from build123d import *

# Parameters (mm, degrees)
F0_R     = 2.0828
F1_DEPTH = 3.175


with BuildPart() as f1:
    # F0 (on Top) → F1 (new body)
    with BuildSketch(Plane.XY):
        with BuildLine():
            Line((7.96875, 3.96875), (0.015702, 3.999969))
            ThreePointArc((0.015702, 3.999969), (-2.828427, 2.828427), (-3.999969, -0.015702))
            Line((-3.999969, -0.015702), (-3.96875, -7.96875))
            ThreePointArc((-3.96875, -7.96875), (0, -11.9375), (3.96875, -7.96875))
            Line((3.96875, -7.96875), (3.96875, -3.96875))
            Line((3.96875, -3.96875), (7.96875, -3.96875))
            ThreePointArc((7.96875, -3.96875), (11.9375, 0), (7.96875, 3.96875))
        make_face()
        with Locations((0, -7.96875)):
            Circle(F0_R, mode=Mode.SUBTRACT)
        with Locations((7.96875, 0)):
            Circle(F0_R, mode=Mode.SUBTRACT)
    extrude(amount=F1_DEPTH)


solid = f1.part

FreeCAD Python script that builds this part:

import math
import FreeCAD as App
import Part
import Sketcher
from FreeCAD import Vector
Q = App.Units.Quantity

doc = App.newDocument("Part")
body = doc.addObject("PartDesign::Body", "Body")

# Sketch on XY plane
sketch1 = doc.addObject("Sketcher::SketchObject", "Sketch")
body.addObject(sketch1)
sketch1.AttachmentSupport = (doc.XY_Plane, [""])
sketch1.MapMode = "FlatFace"
sketch1.addGeometry(Part.LineSegment(Vector(7.96875, 3.96875, 0), Vector(0.015702, 3.999969, 0)), False)
sketch1.addGeometry(Part.ArcOfCircle(Part.Circle(Vector(0, 0, 0), Vector(0, 0, 1), 4), math.radians(89.775085), math.radians(180.224915)), False)
sketch1.addGeometry(Part.LineSegment(Vector(-3.999969, -0.015702, 0), Vector(-3.96875, -7.96875, 0)), False)
sketch1.addGeometry(Part.ArcOfCircle(Part.Circle(Vector(0, -7.96875, 0), Vector(0, 0, 1), 3.96875), math.radians(180), math.radians(360)), False)
sketch1.addGeometry(Part.LineSegment(Vector(3.96875, -7.96875, 0), Vector(3.96875, -3.96875, 0)), False)
sketch1.addGeometry(Part.LineSegment(Vector(3.96875, -3.96875, 0), Vector(7.96875, -3.96875, 0)), False)
sketch1.addGeometry(Part.ArcOfCircle(Part.Circle(Vector(7.96875, 0, 0), Vector(0, 0, 1), 3.96875), math.radians(-90), math.radians(90)), False)
sketch1.addGeometry(Part.Circle(Vector(0, -7.96875, 0), Vector(0, 0, 1), 2.0828), False)
sketch1.addGeometry(Part.Circle(Vector(7.96875, 0, 0), Vector(0, 0, 1), 2.0828), False)
sketch1.addConstraint(Sketcher.Constraint("Tangent", 0, 2, 1, 1))
sketch1.addConstraint(Sketcher.Constraint("Tangent", 1, 2, 2, 1))
sketch1.addConstraint(Sketcher.Constraint("Coincident", 2, 2, 3, 1))
sketch1.addConstraint(Sketcher.Constraint("Tangent", 3, 2, 4, 1))
sketch1.addConstraint(Sketcher.Constraint("Coincident", 4, 2, 5, 1))
sketch1.addConstraint(Sketcher.Constraint("Tangent", 5, 2, 6, 1))
sketch1.addConstraint(Sketcher.Constraint("Coincident", 6, 2, 0, 1))
sketch1.addConstraint(Sketcher.Constraint("Vertical", 4))
sketch1.addConstraint(Sketcher.Constraint("Horizontal", 5))
sketch1.addConstraint(Sketcher.Constraint("Coincident", 1, 3, -1, 1))
sketch1.addConstraint(Sketcher.Constraint("Coincident", 7, 3, 3, 3))
sketch1.addConstraint(Sketcher.Constraint("Coincident", 8, 3, 6, 3))
sketch1.addConstraint(Sketcher.Constraint("Equal", 3, 6))
sketch1.addConstraint(Sketcher.Constraint("Equal", 7, 8))
sketch1.addConstraint(Sketcher.Constraint("Symmetric", 2, 2, 3, 2, -2))
sketch1.addConstraint(Sketcher.Constraint("Symmetric", 5, 2, 6, 2, -1))
sketch1.addConstraint(Sketcher.Constraint("Equal", 5, 4))
sketch1.addConstraint(Sketcher.Constraint("Diameter", 7, Q("0.164 in")))
sketch1.addConstraint(Sketcher.Constraint("Radius", 3, Q("0.15625 in")))
sketch1.addConstraint(Sketcher.Constraint("Radius", 1, 4.0))
sketch1.addConstraint(Sketcher.Constraint("DistanceX", 5, 1, 5, 2, 4.0))
pad1 = doc.addObject("PartDesign::Pad", "Pad")
body.addObject(pad1)
pad1.Profile = sketch1
pad1.Length = Q("0.125 in")

doc.recompute()
